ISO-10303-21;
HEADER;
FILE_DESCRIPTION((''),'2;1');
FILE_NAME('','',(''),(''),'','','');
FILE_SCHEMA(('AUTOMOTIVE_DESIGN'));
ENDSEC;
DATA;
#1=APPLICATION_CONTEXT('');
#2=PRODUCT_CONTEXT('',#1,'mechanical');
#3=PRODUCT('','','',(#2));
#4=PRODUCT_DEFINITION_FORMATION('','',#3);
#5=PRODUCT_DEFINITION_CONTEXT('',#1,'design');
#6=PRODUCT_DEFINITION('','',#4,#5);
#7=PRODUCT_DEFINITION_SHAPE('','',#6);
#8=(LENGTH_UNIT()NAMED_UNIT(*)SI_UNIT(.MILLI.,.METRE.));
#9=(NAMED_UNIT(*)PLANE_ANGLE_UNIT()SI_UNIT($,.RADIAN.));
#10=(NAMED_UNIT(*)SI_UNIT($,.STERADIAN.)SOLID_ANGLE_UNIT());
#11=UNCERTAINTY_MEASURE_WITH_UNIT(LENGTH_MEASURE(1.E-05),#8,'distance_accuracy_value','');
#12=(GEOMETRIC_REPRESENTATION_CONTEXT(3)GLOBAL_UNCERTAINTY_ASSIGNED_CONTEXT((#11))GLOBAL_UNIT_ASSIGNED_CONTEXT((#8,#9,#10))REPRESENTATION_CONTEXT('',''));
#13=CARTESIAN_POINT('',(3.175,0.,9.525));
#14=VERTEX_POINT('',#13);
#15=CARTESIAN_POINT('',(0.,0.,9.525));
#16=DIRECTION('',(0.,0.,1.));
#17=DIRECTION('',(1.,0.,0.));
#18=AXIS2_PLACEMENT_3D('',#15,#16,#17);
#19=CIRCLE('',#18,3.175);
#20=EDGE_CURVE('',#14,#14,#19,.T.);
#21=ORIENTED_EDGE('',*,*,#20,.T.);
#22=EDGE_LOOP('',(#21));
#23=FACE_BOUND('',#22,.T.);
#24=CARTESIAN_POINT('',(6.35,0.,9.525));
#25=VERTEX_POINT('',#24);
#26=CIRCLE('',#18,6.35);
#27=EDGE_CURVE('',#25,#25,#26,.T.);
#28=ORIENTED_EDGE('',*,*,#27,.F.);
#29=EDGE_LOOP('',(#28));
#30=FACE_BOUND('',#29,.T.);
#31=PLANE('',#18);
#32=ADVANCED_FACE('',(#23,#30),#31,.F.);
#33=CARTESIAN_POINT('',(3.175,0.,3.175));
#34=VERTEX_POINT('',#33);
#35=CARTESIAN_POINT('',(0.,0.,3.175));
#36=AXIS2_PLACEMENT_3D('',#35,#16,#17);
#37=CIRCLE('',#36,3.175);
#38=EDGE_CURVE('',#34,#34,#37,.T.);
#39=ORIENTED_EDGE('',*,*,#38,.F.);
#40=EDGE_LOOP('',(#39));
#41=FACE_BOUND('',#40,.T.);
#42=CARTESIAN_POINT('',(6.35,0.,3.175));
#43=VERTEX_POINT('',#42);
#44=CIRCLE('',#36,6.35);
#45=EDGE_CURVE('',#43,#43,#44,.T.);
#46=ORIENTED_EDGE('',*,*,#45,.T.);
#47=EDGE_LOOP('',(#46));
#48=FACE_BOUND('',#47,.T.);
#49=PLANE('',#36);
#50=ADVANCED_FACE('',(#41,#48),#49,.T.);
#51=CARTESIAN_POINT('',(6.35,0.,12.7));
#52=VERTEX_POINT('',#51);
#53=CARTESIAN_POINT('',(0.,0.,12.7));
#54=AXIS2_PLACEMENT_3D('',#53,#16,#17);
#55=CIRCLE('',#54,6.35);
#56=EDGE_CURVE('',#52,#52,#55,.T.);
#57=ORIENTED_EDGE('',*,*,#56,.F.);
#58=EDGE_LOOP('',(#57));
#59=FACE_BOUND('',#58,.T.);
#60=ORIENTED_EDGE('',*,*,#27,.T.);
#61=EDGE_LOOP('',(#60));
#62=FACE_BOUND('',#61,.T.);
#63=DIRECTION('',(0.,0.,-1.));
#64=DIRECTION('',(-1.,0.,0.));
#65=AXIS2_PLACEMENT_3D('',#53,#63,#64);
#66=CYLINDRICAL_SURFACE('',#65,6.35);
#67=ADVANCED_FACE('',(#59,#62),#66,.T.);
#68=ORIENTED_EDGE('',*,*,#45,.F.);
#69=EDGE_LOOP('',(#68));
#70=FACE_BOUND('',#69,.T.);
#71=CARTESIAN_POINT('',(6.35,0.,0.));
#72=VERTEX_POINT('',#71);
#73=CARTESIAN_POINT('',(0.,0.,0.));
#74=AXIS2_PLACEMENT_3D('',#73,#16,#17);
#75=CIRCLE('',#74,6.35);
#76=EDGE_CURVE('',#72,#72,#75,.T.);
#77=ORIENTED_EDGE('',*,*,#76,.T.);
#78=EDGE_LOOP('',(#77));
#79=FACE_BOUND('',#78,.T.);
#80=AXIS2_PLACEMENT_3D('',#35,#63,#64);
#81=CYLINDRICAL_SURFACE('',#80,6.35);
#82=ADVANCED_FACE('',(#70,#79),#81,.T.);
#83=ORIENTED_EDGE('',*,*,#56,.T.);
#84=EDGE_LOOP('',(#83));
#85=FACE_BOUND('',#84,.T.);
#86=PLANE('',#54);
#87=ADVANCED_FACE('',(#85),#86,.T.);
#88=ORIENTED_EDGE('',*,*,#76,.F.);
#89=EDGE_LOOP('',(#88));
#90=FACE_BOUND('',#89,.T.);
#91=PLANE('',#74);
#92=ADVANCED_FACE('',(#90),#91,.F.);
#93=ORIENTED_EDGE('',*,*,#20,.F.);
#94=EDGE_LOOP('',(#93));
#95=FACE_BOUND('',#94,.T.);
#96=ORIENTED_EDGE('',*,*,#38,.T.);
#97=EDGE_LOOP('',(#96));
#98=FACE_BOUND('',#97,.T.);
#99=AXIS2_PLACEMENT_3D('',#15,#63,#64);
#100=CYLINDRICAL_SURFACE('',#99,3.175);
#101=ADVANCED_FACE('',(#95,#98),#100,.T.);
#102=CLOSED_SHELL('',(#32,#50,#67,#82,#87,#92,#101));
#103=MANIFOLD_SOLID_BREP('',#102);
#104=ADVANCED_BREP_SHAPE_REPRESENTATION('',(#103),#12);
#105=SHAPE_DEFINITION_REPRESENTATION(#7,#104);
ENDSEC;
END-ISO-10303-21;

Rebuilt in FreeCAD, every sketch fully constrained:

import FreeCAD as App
import Part
import Sketcher

V = App.Vector
Q = App.Units.Quantity

doc = App.newDocument("Part")
body = doc.addObject("PartDesign::Body", "Body")

# Sketch on XY plane
sketch1 = body.newObject("Sketcher::SketchObject", "Sketch")
sketch1.AttachmentSupport = (doc.getObject("XY_Plane"), [""])
sketch1.MapMode = "FlatFace"
sketch1.addGeometry(Part.Circle(V(0, 0, 0), V(0, 0, 1), 6), False)
sketch1.addConstraint(Sketcher.Constraint("Coincident", 0, 3, -1, 1))
sketch1.addConstraint(Sketcher.Constraint("Diameter", 0, Q("0.5 in")))
pad1 = body.newObject("PartDesign::Pad", "Pad")
pad1.Profile = sketch1
pad1.Length = Q("0.125 in")

# Sketch on XY plane
sketch2 = body.newObject("Sketcher::SketchObject", "Sketch001")
sketch2.AttachmentSupport = (doc.getObject("XY_Plane"), [""])
sketch2.MapMode = "FlatFace"
sketch2.AttachmentOffset = App.Placement(V(0, 0, 0.125 * 25.4), App.Rotation())
sketch2.addGeometry(Part.Circle(V(0, 0, 0), V(0, 0, 1), 3.2), False)
sketch2.addConstraint(Sketcher.Constraint("Coincident", 0, 3, -1, 1))
sketch2.addConstraint(Sketcher.Constraint("Diameter", 0, Q("0.25 in")))
pad2 = body.newObject("PartDesign::Pad", "Pad001")
pad2.Profile = sketch2
pad2.Length = Q("0.25 in")

# Sketch on XY plane
sketch3 = body.newObject("Sketcher::SketchObject", "Sketch002")
sketch3.AttachmentSupport = (doc.getObject("XY_Plane"), [""])
sketch3.MapMode = "FlatFace"
sketch3.AttachmentOffset = App.Placement(V(0, 0, 0.375 * 25.4), App.Rotation())
sketch3.addGeometry(Part.Circle(V(0, 0, 0), V(0, 0, 1), 6), False)
sketch3.addConstraint(Sketcher.Constraint("Coincident", 0, 3, -1, 1))
sketch3.addConstraint(Sketcher.Constraint("Diameter", 0, Q("0.5 in")))
pad3 = body.newObject("PartDesign::Pad", "Pad002")
pad3.Profile = sketch3
pad3.Length = Q("0.125 in")

doc.recompute()
